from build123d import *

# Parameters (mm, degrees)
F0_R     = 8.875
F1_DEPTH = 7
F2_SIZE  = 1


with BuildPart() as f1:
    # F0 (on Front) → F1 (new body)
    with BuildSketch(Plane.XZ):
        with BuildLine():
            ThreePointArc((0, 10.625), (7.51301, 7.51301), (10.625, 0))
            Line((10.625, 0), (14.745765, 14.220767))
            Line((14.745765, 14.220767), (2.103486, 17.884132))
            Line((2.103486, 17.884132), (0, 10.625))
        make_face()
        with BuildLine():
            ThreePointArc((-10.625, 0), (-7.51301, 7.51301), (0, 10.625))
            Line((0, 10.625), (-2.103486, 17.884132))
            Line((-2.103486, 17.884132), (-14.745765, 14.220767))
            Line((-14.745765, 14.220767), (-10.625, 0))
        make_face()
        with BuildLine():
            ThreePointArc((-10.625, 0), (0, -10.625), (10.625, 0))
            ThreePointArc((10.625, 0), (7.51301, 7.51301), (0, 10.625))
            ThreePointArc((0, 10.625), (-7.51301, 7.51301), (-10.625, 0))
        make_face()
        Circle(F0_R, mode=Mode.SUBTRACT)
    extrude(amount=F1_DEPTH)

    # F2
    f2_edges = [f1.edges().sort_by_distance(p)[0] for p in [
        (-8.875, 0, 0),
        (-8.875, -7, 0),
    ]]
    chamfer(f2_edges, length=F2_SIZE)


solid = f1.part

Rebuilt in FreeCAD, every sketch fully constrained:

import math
import FreeCAD as App
import Part
import Sketcher


def edges_at(feature, points):
    """Names of the edges that pass closest to the given points."""
    edges = feature.Shape.Edges
    near = lambda p: min(range(len(edges)), key=lambda i: edges[i].distToShape(Part.Vertex(*p))[0])
    return sorted({f"Edge{near(p) + 1}" for p in points})

doc = App.newDocument("Part")
params = doc.addObject("Spreadsheet::Sheet", "Params")
for row, (alias, value) in enumerate([
    ("sketch1_diameter", "17.75 mm"),
    ("pad1_length", "7 mm"),
    ("chamfer_size", "1 mm"),
], start=1):
    params.set(f"A{row}", alias)
    params.set(f"B{row}", "=" + value)
    params.setAlias(f"B{row}", alias)

body = doc.addObject("PartDesign::Body", "Body")

sketch1 = doc.addObject("Sketcher::SketchObject", "Sketch")
body.addObject(sketch1)
sketch1.AttachmentSupport = (doc.XZ_Plane, [""])
sketch1.MapMode = "FlatFace"
sketch1.addGeometry(Part.LineSegment(App.Vector(11, 0, 0), App.Vector(15, 14, 0)), False)
sketch1.addGeometry(Part.LineSegment(App.Vector(15, 14, 0), App.Vector(2, 18, 0)), False)
sketch1.addGeometry(Part.LineSegment(App.Vector(2, 18, 0), App.Vector(0, 11, 0)), False)
sketch1.addGeometry(Part.LineSegment(App.Vector(0, 11, 0), App.Vector(-2, 18, 0)), False)
sketch1.addGeometry(Part.LineSegment(App.Vector(-2, 18, 0), App.Vector(-15, 14, 0)), False)
sketch1.addGeometry(Part.LineSegment(App.Vector(-15, 14, 0), App.Vector(-11, 0, 0)), False)
sketch1.addGeometry(Part.ArcOfCircle(Part.Circle(App.Vector(0, 0, 0), App.Vector(0, 0, 1), 11), math.radians(180), math.radians(360)), False)
sketch1.addGeometry(Part.Circle(App.Vector(0, 0, 0), App.Vector(0, 0, 1), 9), False)
sketch1.addConstraint(Sketcher.Constraint("Coincident", 0, 2, 1, 1))
sketch1.addConstraint(Sketcher.Constraint("Coincident", 1, 2, 2, 1))
sketch1.addConstraint(Sketcher.Constraint("Coincident", 2, 2, 3, 1))
sketch1.addConstraint(Sketcher.Constraint("Coincident", 3, 2, 4, 1))
sketch1.addConstraint(Sketcher.Constraint("Coincident", 4, 2, 5, 1))
sketch1.addConstraint(Sketcher.Constraint("Coincident", 5, 2, 6, 1))
sketch1.addConstraint(Sketcher.Constraint("Coincident", 6, 2, 0, 1))
sketch1.addConstraint(Sketcher.Constraint("Coincident", 6, 3, -1, 1))
sketch1.addConstraint(Sketcher.Constraint("Coincident", 7, 3, -1, 1))
sketch1.addConstraint(Sketcher.Constraint("Symmetric", 1, 2, 3, 2, -2))
sketch1.addConstraint(Sketcher.Constraint("Symmetric", 0, 2, 4, 2, -2))
sketch1.addConstraint(Sketcher.Constraint("PointOnObject", 2, 2, -2))
sketch1.addConstraint(Sketcher.Constraint("PointOnObject", 5, 2, -1))
sketch1.addConstraint(Sketcher.Constraint("PointOnObject", 6, 2, -1))
sketch1.addConstraint(Sketcher.Constraint("Perpendicular", 0, 1))
sketch1.addConstraint(Sketcher.Constraint("Perpendicular", 1, 2))
sketch1.addConstraint(Sketcher.Constraint("Diameter", 7, 17.75))
sketch1.addConstraint(Sketcher.Constraint("Radius", 6, 10.625))
sketch1.addConstraint(Sketcher.Constraint("DistanceY", -1, 1, 2, 2, 10.625))
sketch1.addConstraint(Sketcher.Constraint("Distance", 1, 13.16235))
sketch1.addConstraint(Sketcher.Constraint("DistanceX", 3, 2, 0, 2, 16.849251))
sketch1.setExpression("Constraints[16]", "Params.sketch1_diameter")
pad1 = doc.addObject("PartDesign::Pad", "Pad")
body.addObject(pad1)
pad1.Profile = sketch1
pad1.setExpression("Length", "Params.pad1_length")
doc.recompute()

chamfer = doc.addObject("PartDesign::Chamfer", "Chamfer")
body.addObject(chamfer)
chamfer.Base = (pad1, edges_at(pad1, [(-8.875, 0, 0), (-8.875, -7, 0)]))
chamfer.setExpression("Size", "Params.chamfer_size")

doc.recompute()
